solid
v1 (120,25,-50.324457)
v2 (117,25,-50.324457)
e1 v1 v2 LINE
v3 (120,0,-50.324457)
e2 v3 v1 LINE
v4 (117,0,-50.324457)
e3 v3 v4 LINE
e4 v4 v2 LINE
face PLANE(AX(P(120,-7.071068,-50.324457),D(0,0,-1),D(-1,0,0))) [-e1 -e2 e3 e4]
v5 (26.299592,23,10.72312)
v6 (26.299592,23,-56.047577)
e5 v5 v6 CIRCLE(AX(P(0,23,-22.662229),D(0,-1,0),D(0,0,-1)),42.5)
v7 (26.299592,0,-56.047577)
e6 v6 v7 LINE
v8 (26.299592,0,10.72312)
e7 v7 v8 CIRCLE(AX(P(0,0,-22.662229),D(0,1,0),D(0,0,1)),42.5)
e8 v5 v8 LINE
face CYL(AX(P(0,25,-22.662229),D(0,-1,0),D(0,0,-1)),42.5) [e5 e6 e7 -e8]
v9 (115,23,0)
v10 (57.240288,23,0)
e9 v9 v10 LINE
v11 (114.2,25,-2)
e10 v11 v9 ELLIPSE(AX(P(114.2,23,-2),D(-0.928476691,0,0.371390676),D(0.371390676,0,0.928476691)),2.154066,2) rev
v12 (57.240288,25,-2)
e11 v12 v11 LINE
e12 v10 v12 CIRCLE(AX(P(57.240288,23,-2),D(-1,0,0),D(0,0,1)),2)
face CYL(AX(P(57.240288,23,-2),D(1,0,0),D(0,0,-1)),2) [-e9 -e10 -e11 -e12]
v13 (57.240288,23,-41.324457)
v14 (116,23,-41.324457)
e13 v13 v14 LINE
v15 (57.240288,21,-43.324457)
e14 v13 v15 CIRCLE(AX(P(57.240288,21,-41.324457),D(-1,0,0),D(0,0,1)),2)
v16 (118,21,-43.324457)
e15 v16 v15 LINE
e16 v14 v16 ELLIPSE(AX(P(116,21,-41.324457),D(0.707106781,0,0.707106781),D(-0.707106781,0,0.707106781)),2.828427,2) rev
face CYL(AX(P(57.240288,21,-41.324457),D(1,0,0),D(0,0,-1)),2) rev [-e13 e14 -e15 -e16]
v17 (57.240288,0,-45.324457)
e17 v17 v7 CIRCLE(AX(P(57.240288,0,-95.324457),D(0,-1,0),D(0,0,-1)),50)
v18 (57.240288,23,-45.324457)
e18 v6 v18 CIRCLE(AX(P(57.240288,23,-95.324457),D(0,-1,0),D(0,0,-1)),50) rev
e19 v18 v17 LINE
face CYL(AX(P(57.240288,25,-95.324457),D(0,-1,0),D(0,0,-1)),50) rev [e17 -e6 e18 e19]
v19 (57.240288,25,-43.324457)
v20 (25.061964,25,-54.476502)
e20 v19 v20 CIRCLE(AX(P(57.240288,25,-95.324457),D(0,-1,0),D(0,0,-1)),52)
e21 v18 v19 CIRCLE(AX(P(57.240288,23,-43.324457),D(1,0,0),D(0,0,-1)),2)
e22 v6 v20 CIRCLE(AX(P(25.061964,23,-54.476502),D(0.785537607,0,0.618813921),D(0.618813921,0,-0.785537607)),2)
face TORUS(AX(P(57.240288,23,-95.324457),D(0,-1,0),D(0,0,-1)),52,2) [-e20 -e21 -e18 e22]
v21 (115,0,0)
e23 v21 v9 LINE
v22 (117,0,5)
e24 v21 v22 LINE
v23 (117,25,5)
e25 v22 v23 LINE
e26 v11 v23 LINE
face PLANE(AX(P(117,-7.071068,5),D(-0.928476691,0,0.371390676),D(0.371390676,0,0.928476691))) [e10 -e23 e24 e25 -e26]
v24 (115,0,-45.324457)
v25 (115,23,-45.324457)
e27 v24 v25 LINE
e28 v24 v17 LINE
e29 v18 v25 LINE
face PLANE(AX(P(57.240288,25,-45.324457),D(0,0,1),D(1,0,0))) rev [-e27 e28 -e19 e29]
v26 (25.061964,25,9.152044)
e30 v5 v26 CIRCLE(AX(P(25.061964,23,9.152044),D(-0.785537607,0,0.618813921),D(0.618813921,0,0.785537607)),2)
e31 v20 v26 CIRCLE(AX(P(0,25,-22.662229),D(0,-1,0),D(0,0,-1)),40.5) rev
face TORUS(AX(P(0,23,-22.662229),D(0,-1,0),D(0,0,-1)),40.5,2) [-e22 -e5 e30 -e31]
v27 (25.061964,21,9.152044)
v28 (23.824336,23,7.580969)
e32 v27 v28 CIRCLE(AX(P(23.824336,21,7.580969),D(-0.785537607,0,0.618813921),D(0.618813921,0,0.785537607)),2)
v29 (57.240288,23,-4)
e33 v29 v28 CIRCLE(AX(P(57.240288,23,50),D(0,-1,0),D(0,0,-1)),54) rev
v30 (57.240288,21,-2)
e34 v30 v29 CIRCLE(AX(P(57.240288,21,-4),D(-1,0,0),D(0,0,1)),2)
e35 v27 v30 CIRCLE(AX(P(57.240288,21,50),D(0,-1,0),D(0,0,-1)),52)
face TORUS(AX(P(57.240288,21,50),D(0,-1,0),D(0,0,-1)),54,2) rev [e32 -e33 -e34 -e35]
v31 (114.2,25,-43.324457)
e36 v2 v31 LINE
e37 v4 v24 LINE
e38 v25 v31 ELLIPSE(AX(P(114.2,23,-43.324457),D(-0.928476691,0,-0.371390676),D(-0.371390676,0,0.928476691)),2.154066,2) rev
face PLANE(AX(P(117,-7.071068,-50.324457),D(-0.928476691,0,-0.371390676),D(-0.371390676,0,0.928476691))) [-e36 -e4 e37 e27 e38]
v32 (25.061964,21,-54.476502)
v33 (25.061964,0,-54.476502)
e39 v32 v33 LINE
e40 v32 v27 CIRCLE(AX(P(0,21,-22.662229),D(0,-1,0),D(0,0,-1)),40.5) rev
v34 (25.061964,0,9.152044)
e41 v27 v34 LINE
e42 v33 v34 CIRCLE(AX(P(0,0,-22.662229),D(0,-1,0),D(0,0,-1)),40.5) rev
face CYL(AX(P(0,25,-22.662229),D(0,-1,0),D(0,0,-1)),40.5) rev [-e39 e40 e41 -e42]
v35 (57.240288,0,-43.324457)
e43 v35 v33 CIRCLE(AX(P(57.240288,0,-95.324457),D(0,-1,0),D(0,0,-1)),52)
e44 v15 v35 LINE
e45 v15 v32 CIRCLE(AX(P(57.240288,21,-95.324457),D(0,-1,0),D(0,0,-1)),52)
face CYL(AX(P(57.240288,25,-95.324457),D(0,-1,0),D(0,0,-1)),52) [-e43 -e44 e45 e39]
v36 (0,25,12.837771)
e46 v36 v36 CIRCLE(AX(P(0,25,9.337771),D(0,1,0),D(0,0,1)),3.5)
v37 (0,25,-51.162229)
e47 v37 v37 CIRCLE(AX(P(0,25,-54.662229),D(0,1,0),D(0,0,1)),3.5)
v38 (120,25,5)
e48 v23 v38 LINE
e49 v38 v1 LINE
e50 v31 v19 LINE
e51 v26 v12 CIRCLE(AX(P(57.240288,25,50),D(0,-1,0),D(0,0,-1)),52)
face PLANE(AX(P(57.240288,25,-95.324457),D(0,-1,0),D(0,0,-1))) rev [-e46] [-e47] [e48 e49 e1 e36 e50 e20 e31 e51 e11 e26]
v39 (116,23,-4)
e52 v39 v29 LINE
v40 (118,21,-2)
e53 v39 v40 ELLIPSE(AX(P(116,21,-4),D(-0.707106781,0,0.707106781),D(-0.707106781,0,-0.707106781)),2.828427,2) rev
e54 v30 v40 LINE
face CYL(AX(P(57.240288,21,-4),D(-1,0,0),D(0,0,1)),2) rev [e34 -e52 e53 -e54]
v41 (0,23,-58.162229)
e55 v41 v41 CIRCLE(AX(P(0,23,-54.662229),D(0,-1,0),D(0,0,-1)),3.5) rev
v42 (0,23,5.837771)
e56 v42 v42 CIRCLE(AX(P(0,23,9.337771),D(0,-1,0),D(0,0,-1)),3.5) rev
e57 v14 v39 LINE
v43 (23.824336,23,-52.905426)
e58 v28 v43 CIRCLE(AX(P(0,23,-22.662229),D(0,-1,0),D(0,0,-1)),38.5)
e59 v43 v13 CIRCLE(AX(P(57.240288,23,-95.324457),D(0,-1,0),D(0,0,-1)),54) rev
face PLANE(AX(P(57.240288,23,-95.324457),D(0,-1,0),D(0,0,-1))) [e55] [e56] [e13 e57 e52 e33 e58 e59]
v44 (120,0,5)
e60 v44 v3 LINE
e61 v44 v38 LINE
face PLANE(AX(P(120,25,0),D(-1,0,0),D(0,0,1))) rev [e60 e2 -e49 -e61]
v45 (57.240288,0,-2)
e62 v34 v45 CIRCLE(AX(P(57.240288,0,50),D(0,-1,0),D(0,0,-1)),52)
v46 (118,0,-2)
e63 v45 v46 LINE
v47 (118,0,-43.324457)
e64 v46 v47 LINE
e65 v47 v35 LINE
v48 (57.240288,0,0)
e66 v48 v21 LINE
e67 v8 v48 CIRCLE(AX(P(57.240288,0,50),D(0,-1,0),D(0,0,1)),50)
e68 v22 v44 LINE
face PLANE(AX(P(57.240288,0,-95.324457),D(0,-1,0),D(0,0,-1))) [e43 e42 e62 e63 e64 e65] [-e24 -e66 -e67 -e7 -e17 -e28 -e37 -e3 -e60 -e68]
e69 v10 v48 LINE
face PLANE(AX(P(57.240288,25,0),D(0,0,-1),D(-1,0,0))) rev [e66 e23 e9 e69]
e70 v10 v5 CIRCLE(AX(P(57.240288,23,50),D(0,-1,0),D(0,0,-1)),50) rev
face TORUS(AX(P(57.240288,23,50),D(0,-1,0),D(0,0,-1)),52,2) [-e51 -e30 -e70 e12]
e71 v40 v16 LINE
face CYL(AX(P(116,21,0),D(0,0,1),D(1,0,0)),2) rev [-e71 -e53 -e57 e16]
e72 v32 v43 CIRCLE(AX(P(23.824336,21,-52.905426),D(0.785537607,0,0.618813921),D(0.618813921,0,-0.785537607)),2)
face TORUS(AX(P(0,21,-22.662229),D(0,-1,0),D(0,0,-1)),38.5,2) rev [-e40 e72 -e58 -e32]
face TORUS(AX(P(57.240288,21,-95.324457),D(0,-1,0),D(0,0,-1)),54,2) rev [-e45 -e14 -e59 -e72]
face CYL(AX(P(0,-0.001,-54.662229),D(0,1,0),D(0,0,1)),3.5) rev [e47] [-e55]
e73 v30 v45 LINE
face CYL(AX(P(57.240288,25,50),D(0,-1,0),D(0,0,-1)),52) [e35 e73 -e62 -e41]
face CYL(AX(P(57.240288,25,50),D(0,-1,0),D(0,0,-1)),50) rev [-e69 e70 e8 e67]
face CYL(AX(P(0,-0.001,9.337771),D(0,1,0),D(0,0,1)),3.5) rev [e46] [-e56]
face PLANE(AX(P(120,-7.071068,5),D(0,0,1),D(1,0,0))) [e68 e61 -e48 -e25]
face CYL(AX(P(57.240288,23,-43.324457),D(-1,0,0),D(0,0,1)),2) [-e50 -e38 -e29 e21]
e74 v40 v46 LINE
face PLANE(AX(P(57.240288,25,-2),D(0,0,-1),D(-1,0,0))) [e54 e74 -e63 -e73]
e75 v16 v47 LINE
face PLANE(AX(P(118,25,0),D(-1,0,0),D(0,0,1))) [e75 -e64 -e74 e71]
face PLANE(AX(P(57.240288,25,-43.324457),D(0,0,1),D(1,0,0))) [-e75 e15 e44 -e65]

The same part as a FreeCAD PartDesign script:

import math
import FreeCAD as App
import Part
import Sketcher
from FreeCAD import Vector
Q = App.Units.Quantity


def edges_at(feature, points):
    """Names of the edges that pass closest to the given points."""
    edges = feature.Shape.Edges
    near = lambda p: min(range(len(edges)), key=lambda i: edges[i].distToShape(Part.Vertex(*p))[0])
    return sorted({f"Edge{near(p) + 1}" for p in points})


def faces_at(feature, points):
    """Names of the faces that lie closest to the given points."""
    faces = feature.Shape.Faces
    near = lambda p: min(range(len(faces)), key=lambda i: faces[i].distToShape(Part.Vertex(*p))[0])
    return sorted({f"Face{near(p) + 1}" for p in points})

doc = App.newDocument("Part")
params = doc.addObject("Spreadsheet::Sheet", "Params")
for row, (alias, value) in enumerate([
    ("sketch1_radius", "50 mm"),
    ("sketch1_radius2", "42.5 mm"),
    ("pad1_length", "25 mm"),
    ("thickness_wall", "2 mm"),
    ("sketch2_diameter", "7 mm"),
    ("sketch3_diameter", "7 mm"),
    ("sketch4_width", "3 mm"),
    ("sketch4_width2", "5 mm"),
    ("pad2_length", "25 mm"),
    ("fillet_radius", "2 mm"),
    ("fillet2_radius", "2 mm"),
], start=1):
    params.set(f"A{row}", alias)
    params.set(f"B{row}", "=" + value)
    params.setAlias(f"B{row}", alias)

body = doc.addObject("PartDesign::Body", "Body")

# Sketch on XZ plane
sketch1 = body.newObject("Sketcher::SketchObject", "Sketch")
sketch1.AttachmentSupport = (doc.getObject("XZ_Plane"), [""])
sketch1.MapMode = "FlatFace"
sketch1.addGeometry(Part.LineSegment(Vector(57, 0, 0), Vector(120, 0, 0)), False)
sketch1.addGeometry(Part.LineSegment(Vector(120, 0, 0), Vector(120, -45, 0)), False)
sketch1.addGeometry(Part.LineSegment(Vector(120, -45, 0), Vector(57, -45, 0)), False)
sketch1.addGeometry(Part.ArcOfCircle(Part.Circle(Vector(57, -95, 0), Vector(0, 0, 1), 50), math.radians(90), math.radians(128)), False)
sketch1.addGeometry(Part.ArcOfCircle(Part.Circle(Vector(0, -23, 0), Vector(0, 0, 1), 42), math.radians(52), math.radians(308)), False)
sketch1.addGeometry(Part.ArcOfCircle(Part.Circle(Vector(57, 50, 0), Vector(0, 0, 1), 50), math.radians(-128), math.radians(-90)), False)
sketch1.addConstraint(Sketcher.Constraint("Coincident", 0, 2, 1, 1))
sketch1.addConstraint(Sketcher.Constraint("Coincident", 1, 2, 2, 1))
sketch1.addConstraint(Sketcher.Constraint("Tangent", 2, 2, 3, 1))
sketch1.addConstraint(Sketcher.Constraint("Tangent", 3, 2, 4, 2))
sketch1.addConstraint(Sketcher.Constraint("Tangent", 4, 1, 5, 1))
sketch1.addConstraint(Sketcher.Constraint("Tangent", 5, 2, 0, 1))
sketch1.addConstraint(Sketcher.Constraint("Horizontal", 0))
sketch1.addConstraint(Sketcher.Constraint("Vertical", 1))
sketch1.addConstraint(Sketcher.Constraint("Horizontal", 2))
sketch1.addConstraint(Sketcher.Constraint("Equal", 3, 5))
sketch1.addConstraint(Sketcher.Constraint("PointOnObject", 4, 3, -2))
sketch1.addConstraint(Sketcher.Constraint("PointOnObject", 0, 2, -1))
sketch1.addConstraint(Sketcher.Constraint("Vertical", 3, 3, 5, 3))
sketch1.addConstraint(Sketcher.Constraint("Radius", 3, Q("50 mm")))
sketch1.addConstraint(Sketcher.Constraint("Radius", 4, Q("42.5 mm")))
sketch1.addConstraint(Sketcher.Constraint("DistanceX", -1, 1, 0, 2, Q("120 mm")))
sketch1.addConstraint(Sketcher.Constraint("DistanceX", 0, 1, 0, 2, Q("62.759712 mm")))
sketch1.setExpression("Constraints[13]", "Params.sketch1_radius")
sketch1.setExpression("Constraints[14]", "Params.sketch1_radius2")
pad1 = body.newObject("PartDesign::Pad", "Pad")
pad1.Profile = sketch1
pad1.setExpression("Length", "Params.pad1_length")
pad1.Reversed = True
doc.recompute()

thickness = body.newObject("PartDesign::Thickness", "Thickness")
thickness.Base = (pad1, faces_at(pad1, [(38.75, 0, -22.662)]))
thickness.setExpression("Value", "Params.thickness_wall")
thickness.Reversed = True
thickness.Join = "Intersection"

# Sketch on XZ plane
sketch2 = body.newObject("Sketcher::SketchObject", "Sketch001")
sketch2.AttachmentSupport = (doc.getObject("XZ_Plane"), [""])
sketch2.MapMode = "FlatFace"
sketch2.AttachmentOffset = App.Placement(Vector(0, 0, -25), App.Rotation())
sketch2.addGeometry(Part.Circle(Vector(0, -54.7, 0), Vector(0, 0, 1), 3.5), False)
sketch2.addConstraint(Sketcher.Constraint("PointOnObject", 0, 3, -2))
sketch2.addConstraint(Sketcher.Constraint("Diameter", 0, Q("7 mm")))
sketch2.addConstraint(Sketcher.Constraint("DistanceY", 0, 3, -1, 1, Q("54.662229 mm")))
sketch2.setExpression("Constraints[1]", "Params.sketch2_diameter")
pocket1 = body.newObject("PartDesign::Pocket", "Pocket")
pocket1.Profile = sketch2
pocket1.Type = "UpToFirst"
pocket1.Reversed = True

# Sketch on XZ plane
sketch3 = body.newObject("Sketcher::SketchObject", "Sketch002")
sketch3.AttachmentSupport = (doc.getObject("XZ_Plane"), [""])
sketch3.MapMode = "FlatFace"
sketch3.AttachmentOffset = App.Placement(Vector(0, 0, -25), App.Rotation())
sketch3.addGeometry(Part.Circle(Vector(0, 9.3, 0), Vector(0, 0, 1), 3.5), False)
sketch3.addConstraint(Sketcher.Constraint("PointOnObject", 0, 3, -2))
sketch3.addConstraint(Sketcher.Constraint("Diameter", 0, Q("7 mm")))
sketch3.addConstraint(Sketcher.Constraint("DistanceY", -1, 1, 0, 3, Q("9.337771 mm")))
sketch3.setExpression("Constraints[1]", "Params.sketch3_diameter")
pocket2 = body.newObject("PartDesign::Pocket", "Pocket001")
pocket2.Profile = sketch3
pocket2.Type = "UpToFirst"
pocket2.Reversed = True

# Sketch on XZ plane
sketch4 = body.newObject("Sketcher::SketchObject", "Sketch003")
sketch4.AttachmentSupport = (doc.getObject("XZ_Plane"), [""])
sketch4.MapMode = "FlatFace"
sketch4.AttachmentOffset = App.Placement(Vector(0, 0, -25), App.Rotation())
sketch4.addGeometry(Part.LineSegment(Vector(120, -45.3, 0), Vector(120, -50.3, 0)), False)
sketch4.addGeometry(Part.LineSegment(Vector(120, -50.3, 0), Vector(117, -50.3, 0)), False)
sketch4.addGeometry(Part.LineSegment(Vector(117, -50.3, 0), Vector(115, -45.3, 0)), False)
sketch4.addGeometry(Part.LineSegment(Vector(115, -45.3, 0), Vector(120, -45.3, 0)), False)
sketch4.addGeometry(Part.LineSegment(Vector(120, 0, 0), Vector(115, 0, 0)), False)
sketch4.addGeometry(Part.LineSegment(Vector(115, 0, 0), Vector(117, 5, 0)), False)
sketch4.addGeometry(Part.LineSegment(Vector(117, 5, 0), Vector(120, 5, 0)), False)
sketch4.addGeometry(Part.LineSegment(Vector(120, 5, 0), Vector(120, 0, 0)), False)
sketch4.addConstraint(Sketcher.Constraint("Coincident", 0, 2, 1, 1))
sketch4.addConstraint(Sketcher.Constraint("Coincident", 1, 2, 2, 1))
sketch4.addConstraint(Sketcher.Constraint("Coincident", 2, 2, 3, 1))
sketch4.addConstraint(Sketcher.Constraint("Coincident", 3, 2, 0, 1))
sketch4.addConstraint(Sketcher.Constraint("Coincident", 4, 2, 5, 1))
sketch4.addConstraint(Sketcher.Constraint("Coincident", 5, 2, 6, 1))
sketch4.addConstraint(Sketcher.Constraint("Coincident", 6, 2, 7, 1))
sketch4.addConstraint(Sketcher.Constraint("Coincident", 7, 2, 4, 1))
sketch4.addConstraint(Sketcher.Constraint("Vertical", 0))
sketch4.addConstraint(Sketcher.Constraint("Horizontal", 1))
sketch4.addConstraint(Sketcher.Constraint("Horizontal", 3))
sketch4.addConstraint(Sketcher.Constraint("Horizontal", 4))
sketch4.addConstraint(Sketcher.Constraint("Horizontal", 6))
sketch4.addConstraint(Sketcher.Constraint("Vertical", 7))
sketch4.addConstraint(Sketcher.Constraint("PointOnObject", 4, 2, -1))
sketch4.addConstraint(Sketcher.Constraint("Vertical", 2, 2, 4, 2))
sketch4.addConstraint(Sketcher.Constraint("Vertical", 1, 2, 5, 2))
sketch4.addConstraint(Sketcher.Constraint("Vertical", 3, 2, 6, 2))
sketch4.addConstraint(Sketcher.Constraint("Equal", 4, 0))
sketch4.addConstraint(Sketcher.Constraint("Equal", 0, 7))
sketch4.addConstraint(Sketcher.Constraint("DistanceX", 1, 2, 1, 1, Q("3 mm")))
sketch4.addConstraint(Sketcher.Constraint("DistanceX", 3, 1, 3, 2, Q("5 mm")))
sketch4.addConstraint(Sketcher.Constraint("DistanceX", -1, 1, 0, 2, Q("120 mm")))
sketch4.addConstraint(Sketcher.Constraint("DistanceY", 0, 2, -1, 1, Q("50.324457 mm")))
sketch4.setExpression("Constraints[20]", "Params.sketch4_width")
sketch4.setExpression("Constraints[21]", "Params.sketch4_width2")
pad2 = body.newObject("PartDesign::Pad", "Pad001")
pad2.Profile = sketch4
pad2.setExpression("Length", "Params.pad2_length")
doc.recompute()

fillet = body.newObject("PartDesign::Fillet", "Fillet")
fillet.Base = (pad2, edges_at(pad2, [
    (40.867, 25, 2.757),
    (86.12, 25, 0),
    (40.867, 25, -48.081),
    (86.12, 25, -45.324),
    (-42.5, 25, -22.662),
]))
fillet.setExpression("Radius", "Params.fillet_radius")
doc.recompute()

fillet2 = body.newObject("PartDesign::Fillet", "Fillet001")
fillet2.Base = (fillet, edges_at(fillet, [
    (40.212, 23, -46.192),
    (-40.5, 23, -22.662),
    (40.212, 23, 0.867),
    (87.62, 23, -2),
    (118, 23, -22.662),
    (87.62, 23, -43.324),
]))
fillet2.setExpression("Radius", "Params.fillet2_radius")

doc.recompute()
